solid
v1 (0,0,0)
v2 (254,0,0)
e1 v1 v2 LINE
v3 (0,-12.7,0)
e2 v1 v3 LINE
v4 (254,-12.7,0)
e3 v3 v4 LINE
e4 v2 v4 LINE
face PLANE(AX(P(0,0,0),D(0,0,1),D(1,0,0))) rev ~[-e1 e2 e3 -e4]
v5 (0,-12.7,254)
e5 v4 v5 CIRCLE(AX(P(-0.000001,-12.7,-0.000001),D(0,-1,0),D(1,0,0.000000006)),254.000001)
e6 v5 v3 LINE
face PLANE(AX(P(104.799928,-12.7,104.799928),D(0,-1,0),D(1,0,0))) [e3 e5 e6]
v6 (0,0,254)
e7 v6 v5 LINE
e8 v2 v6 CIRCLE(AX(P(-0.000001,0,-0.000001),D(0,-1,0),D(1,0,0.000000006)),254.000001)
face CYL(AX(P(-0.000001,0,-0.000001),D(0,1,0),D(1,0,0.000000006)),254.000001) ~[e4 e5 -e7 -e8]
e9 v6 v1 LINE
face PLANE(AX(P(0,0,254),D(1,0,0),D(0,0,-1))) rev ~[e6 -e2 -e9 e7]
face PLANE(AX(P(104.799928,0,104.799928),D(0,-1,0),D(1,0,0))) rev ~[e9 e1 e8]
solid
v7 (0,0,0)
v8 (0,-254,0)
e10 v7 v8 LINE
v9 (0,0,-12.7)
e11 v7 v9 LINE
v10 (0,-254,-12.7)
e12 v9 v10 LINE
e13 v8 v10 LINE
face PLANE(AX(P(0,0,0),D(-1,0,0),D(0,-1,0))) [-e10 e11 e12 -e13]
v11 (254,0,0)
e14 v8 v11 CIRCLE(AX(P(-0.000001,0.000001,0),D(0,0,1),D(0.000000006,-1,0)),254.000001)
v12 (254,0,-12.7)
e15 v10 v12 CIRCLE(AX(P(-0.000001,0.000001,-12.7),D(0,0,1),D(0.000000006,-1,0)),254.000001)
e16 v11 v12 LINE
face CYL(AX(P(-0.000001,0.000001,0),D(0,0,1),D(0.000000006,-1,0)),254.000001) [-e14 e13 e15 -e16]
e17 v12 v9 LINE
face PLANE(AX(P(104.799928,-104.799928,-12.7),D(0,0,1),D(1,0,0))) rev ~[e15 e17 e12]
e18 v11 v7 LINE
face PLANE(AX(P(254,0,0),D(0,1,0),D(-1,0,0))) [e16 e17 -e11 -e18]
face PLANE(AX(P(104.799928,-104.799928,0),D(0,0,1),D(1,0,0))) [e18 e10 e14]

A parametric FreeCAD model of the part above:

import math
import FreeCAD as App
import Part
import Sketcher

V = App.Vector
Q = App.Units.Quantity

doc = App.newDocument("Part")
body = doc.addObject("PartDesign::Body", "Body")

# Sketch on XY plane
sketch1 = body.newObject("Sketcher::SketchObject", "Sketch")
sketch1.AttachmentSupport = (doc.getObject("XY_Plane"), [""])
sketch1.MapMode = "FlatFace"
sketch1.addGeometry([
    Part.LineSegment(V(254, 0, 0), V(0, 0, 0)),
    Part.LineSegment(V(0, 0, 0), V(0, -254, 0)),
    Part.ArcOfCircle(Part.Circle(V(0, 0, 0), V(0, 0, 1), 254), math.radians(-90), math.radians(0)),
], False)
sketch1.addConstraint([
    Sketcher.Constraint("Coincident", 0, 2, 1, 1),
    Sketcher.Constraint("Coincident", 1, 2, 2, 1),
    Sketcher.Constraint("Coincident", 2, 2, 0, 1),
    Sketcher.Constraint("Horizontal", 0),
    Sketcher.Constraint("Vertical", 1),
    Sketcher.Constraint("Coincident", 2, 3, -1, 1),
    Sketcher.Constraint("Coincident", 0, 2, -1, 1),
    Sketcher.Constraint("Radius", 2, Q("10.0000001 in")),
])
pad1 = body.newObject("PartDesign::Pad", "Pad")
pad1.Profile = sketch1
pad1.Length = Q("0.5 in")
pad1.Reversed = True
body2 = doc.addObject("PartDesign::Body", "Body001")

# Sketch on XZ plane
sketch2 = body2.newObject("Sketcher::SketchObject", "Sketch001")
sketch2.AttachmentSupport = (doc.getObject("XZ_Plane001"), [""])
sketch2.MapMode = "FlatFace"
sketch2.addGeometry([
    Part.LineSegment(V(0, 254, 0), V(0, 0, 0)),
    Part.LineSegment(V(0, 0, 0), V(254, 0, 0)),
    Part.ArcOfCircle(Part.Circle(V(0, 0, 0), V(0, 0, 1), 254), math.radians(0), math.radians(90)),
], False)
sketch2.addConstraint([
    Sketcher.Constraint("Coincident", 0, 2, 1, 1),
    Sketcher.Constraint("Coincident", 1, 2, 2, 1),
    Sketcher.Constraint("Coincident", 2, 2, 0, 1),
    Sketcher.Constraint("Vertical", 0),
    Sketcher.Constraint("Horizontal", 1),
    Sketcher.Constraint("Coincident", 2, 3, -1, 1),
    Sketcher.Constraint("Coincident", 0, 2, -1, 1),
    Sketcher.Constraint("Radius", 2, Q("10.0000001 in")),
])
pad2 = body2.newObject("PartDesign::Pad", "Pad001")
pad2.Profile = sketch2
pad2.Length = Q("0.5 in")

doc.recompute()
